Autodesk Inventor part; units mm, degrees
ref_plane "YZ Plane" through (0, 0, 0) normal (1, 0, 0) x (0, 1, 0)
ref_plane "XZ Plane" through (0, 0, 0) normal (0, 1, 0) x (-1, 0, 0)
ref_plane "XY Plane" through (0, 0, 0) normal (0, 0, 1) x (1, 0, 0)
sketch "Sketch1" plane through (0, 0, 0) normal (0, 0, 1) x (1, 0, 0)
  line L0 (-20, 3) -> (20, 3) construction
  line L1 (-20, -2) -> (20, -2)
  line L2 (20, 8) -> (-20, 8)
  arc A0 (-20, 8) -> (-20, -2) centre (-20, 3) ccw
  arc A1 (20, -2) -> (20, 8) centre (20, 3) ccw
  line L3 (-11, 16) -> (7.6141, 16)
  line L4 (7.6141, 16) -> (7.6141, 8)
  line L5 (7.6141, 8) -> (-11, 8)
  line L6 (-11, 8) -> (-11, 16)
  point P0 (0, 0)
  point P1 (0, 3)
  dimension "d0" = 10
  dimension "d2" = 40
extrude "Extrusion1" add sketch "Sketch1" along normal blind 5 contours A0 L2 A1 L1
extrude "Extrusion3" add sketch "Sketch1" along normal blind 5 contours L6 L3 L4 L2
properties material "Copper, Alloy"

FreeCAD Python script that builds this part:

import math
import FreeCAD as App
import Part
import Sketcher
from FreeCAD import Vector
Q = App.Units.Quantity

doc = App.newDocument("Part")
body = doc.addObject("PartDesign::Body", "Body")

# Sketch on XY plane
sketch1 = doc.addObject("Sketcher::SketchObject", "Sketch")
body.addObject(sketch1)
sketch1.AttachmentSupport = (doc.XY_Plane, [""])
sketch1.MapMode = "FlatFace"
sketch1.addGeometry(Part.ArcOfCircle(Part.Circle(Vector(-20, 3, 0), Vector(0, 0, 1), 5), math.radians(90), math.radians(270)), False)
sketch1.addGeometry(Part.LineSegment(Vector(-20, -2, 0), Vector(20, -2, 0)), False)
sketch1.addGeometry(Part.ArcOfCircle(Part.Circle(Vector(20, 3, 0), Vector(0, 0, 1), 5), math.radians(-90), math.radians(90)), False)
sketch1.addGeometry(Part.LineSegment(Vector(20, 8, 0), Vector(-20, 8, 0)), False)
sketch1.addConstraint(Sketcher.Constraint("Tangent", 0, 2, 1, 1))
sketch1.addConstraint(Sketcher.Constraint("Tangent", 1, 2, 2, 1))
sketch1.addConstraint(Sketcher.Constraint("Tangent", 2, 2, 3, 1))
sketch1.addConstraint(Sketcher.Constraint("Tangent", 3, 2, 0, 1))
sketch1.addConstraint(Sketcher.Constraint("Horizontal", 1))
sketch1.addConstraint(Sketcher.Constraint("Horizontal", 3))
sketch1.addConstraint(Sketcher.Constraint("Radius", 0, Q("5 mm")))
sketch1.addConstraint(Sketcher.Constraint("DistanceX", 1, 1, 1, 2, Q("40 mm")))
sketch1.addConstraint(Sketcher.Constraint("DistanceX", 0, 3, -1, 1, Q("20 mm")))
sketch1.addConstraint(Sketcher.Constraint("DistanceY", -1, 1, 0, 3, Q("3 mm")))
pad1 = doc.addObject("PartDesign::Pad", "Pad")
body.addObject(pad1)
pad1.Profile = sketch1
pad1.Length = 5

# Sketch on XY plane
sketch2 = doc.addObject("Sketcher::SketchObject", "Sketch001")
body.addObject(sketch2)
sketch2.AttachmentSupport = (doc.XY_Plane, [""])
sketch2.MapMode = "FlatFace"
sketch2.addGeometry(Part.LineSegment(Vector(-11, 16, 0), Vector(-11, 8, 0)), False)
sketch2.addGeometry(Part.LineSegment(Vector(-11, 8, 0), Vector(8, 8, 0)), False)
sketch2.addGeometry(Part.LineSegment(Vector(8, 8, 0), Vector(8, 16, 0)), False)
sketch2.addGeometry(Part.LineSegment(Vector(8, 16, 0), Vector(-11, 16, 0)), False)
sketch2.addConstraint(Sketcher.Constraint("Coincident", 0, 2, 1, 1))
sketch2.addConstraint(Sketcher.Constraint("Coincident", 1, 2, 2, 1))
sketch2.addConstraint(Sketcher.Constraint("Coincident", 2, 2, 3, 1))
sketch2.addConstraint(Sketcher.Constraint("Coincident", 3, 2, 0, 1))
sketch2.addConstraint(Sketcher.Constraint("Vertical", 0))
sketch2.addConstraint(Sketcher.Constraint("Horizontal", 1))
sketch2.addConstraint(Sketcher.Constraint("Vertical", 2))
sketch2.addConstraint(Sketcher.Constraint("Horizontal", 3))
sketch2.addConstraint(Sketcher.Constraint("DistanceY", 0, 2, 0, 1, Q("8 mm")))
sketch2.addConstraint(Sketcher.Constraint("DistanceX", 0, 2, -1, 1, Q("11 mm")))
sketch2.addConstraint(Sketcher.Constraint("DistanceY", -1, 1, 0, 2, Q("8 mm")))
sketch2.addConstraint(Sketcher.Constraint("DistanceX", 1, 1, 1, 2, Q("18.614 mm")))
pad2 = doc.addObject("PartDesign::Pad", "Pad001")
body.addObject(pad2)
pad2.Profile = sketch2
pad2.Length = 5

doc.recompute()
